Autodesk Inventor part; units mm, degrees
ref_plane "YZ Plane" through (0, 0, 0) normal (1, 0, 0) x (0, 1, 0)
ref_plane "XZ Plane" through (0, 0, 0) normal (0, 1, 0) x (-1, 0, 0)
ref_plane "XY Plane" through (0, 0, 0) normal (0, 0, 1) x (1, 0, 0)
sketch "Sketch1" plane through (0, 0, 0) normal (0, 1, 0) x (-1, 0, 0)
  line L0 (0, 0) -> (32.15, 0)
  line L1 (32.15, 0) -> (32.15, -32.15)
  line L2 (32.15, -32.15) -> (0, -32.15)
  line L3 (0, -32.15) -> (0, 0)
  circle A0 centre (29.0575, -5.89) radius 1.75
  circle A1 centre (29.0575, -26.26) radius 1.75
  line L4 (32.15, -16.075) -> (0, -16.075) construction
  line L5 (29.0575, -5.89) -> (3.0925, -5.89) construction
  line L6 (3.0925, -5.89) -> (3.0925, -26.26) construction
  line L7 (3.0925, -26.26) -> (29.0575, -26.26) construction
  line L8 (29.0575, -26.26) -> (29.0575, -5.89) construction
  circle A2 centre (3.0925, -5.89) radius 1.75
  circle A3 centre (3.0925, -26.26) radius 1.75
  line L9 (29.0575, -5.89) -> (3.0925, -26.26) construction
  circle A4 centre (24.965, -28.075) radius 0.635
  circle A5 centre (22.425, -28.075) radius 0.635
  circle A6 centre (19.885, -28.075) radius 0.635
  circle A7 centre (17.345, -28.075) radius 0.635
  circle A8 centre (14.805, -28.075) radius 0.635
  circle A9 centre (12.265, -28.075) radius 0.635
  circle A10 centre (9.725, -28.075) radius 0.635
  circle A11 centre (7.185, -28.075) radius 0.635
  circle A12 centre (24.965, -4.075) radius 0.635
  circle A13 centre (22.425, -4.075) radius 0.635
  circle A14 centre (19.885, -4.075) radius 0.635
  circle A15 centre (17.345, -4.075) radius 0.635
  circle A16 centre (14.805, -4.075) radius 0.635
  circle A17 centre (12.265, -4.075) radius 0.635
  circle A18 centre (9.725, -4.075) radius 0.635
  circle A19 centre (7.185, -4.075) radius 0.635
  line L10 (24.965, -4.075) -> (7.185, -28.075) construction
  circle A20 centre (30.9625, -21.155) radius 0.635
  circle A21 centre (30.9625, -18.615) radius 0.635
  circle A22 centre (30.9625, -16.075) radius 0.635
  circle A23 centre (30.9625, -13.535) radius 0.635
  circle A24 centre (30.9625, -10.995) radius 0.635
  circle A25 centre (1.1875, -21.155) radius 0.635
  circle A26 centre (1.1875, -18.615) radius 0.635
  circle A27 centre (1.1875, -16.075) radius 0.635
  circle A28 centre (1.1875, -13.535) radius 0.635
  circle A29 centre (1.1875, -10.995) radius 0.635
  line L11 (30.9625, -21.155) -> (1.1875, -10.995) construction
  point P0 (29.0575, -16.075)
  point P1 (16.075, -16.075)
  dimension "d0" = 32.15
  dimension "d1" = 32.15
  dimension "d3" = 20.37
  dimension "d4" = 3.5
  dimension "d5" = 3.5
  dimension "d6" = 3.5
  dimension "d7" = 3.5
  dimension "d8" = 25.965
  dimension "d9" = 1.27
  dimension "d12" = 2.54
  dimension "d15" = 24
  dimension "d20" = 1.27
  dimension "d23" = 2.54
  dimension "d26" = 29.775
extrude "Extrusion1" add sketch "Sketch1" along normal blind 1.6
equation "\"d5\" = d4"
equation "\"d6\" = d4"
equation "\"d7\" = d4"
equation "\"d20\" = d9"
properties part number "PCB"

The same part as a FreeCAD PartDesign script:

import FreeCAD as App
import Part
import Sketcher
Q = App.Units.Quantity


def add_polygon(sketch, points):
    """Adds a closed chain of lines whose ends are joined by coincident constraints."""
    first, n = sketch.GeometryCount, len(points)
    for a, b in zip(points, points[1:] + points[:1]):
        sketch.addGeometry(Part.LineSegment(App.Vector(*a, 0), App.Vector(*b, 0)), False)
    for i in range(n):
        sketch.addConstraint(Sketcher.Constraint("Coincident", first + i, 2, first + (i + 1) % n, 1))

doc = App.newDocument("Part")
body = doc.addObject("PartDesign::Body", "Body")

sketch1 = doc.addObject("Sketcher::SketchObject", "Sketch")
body.addObject(sketch1)
sketch1.AttachmentSupport = (doc.XZ_Plane, [""])
sketch1.MapMode = "FlatFace"
add_polygon(sketch1, [(-32.1, 0), (0, 0), (0, -32.1), (-32.1, -32.1)])
sketch1.addGeometry(Part.Circle(App.Vector(-3.1, -26.3, 0), App.Vector(0, 0, 1), 1.8), False)
sketch1.addGeometry(Part.Circle(App.Vector(-7.2, -28.1, 0), App.Vector(0, 0, 1), 0.6), False)
sketch1.addGeometry(Part.Circle(App.Vector(-9.7, -28.1, 0), App.Vector(0, 0, 1), 0.6), False)
sketch1.addGeometry(Part.Circle(App.Vector(-12.3, -28.1, 0), App.Vector(0, 0, 1), 0.6), False)
sketch1.addGeometry(Part.Circle(App.Vector(-14.8, -28.1, 0), App.Vector(0, 0, 1), 0.6), False)
sketch1.addGeometry(Part.Circle(App.Vector(-1.2, -21.2, 0), App.Vector(0, 0, 1), 0.6), False)
sketch1.addGeometry(Part.Circle(App.Vector(-1.2, -18.6, 0), App.Vector(0, 0, 1), 0.6), False)
sketch1.addGeometry(Part.Circle(App.Vector(-17.3, -28.1, 0), App.Vector(0, 0, 1), 0.6), False)
sketch1.addGeometry(Part.Circle(App.Vector(-19.9, -28.1, 0), App.Vector(0, 0, 1), 0.6), False)
sketch1.addGeometry(Part.Circle(App.Vector(-22.4, -28.1, 0), App.Vector(0, 0, 1), 0.6), False)
sketch1.addGeometry(Part.Circle(App.Vector(-25, -28.1, 0), App.Vector(0, 0, 1), 0.6), False)
sketch1.addGeometry(Part.Circle(App.Vector(-29.1, -26.3, 0), App.Vector(0, 0, 1), 1.8), False)
sketch1.addGeometry(Part.Circle(App.Vector(-31, -21.2, 0), App.Vector(0, 0, 1), 0.6), False)
sketch1.addGeometry(Part.Circle(App.Vector(-31, -18.6, 0), App.Vector(0, 0, 1), 0.6), False)
sketch1.addGeometry(Part.Circle(App.Vector(-1.2, -16.1, 0), App.Vector(0, 0, 1), 0.6), False)
sketch1.addGeometry(Part.Circle(App.Vector(-1.2, -13.5, 0), App.Vector(0, 0, 1), 0.6), False)
sketch1.addGeometry(Part.Circle(App.Vector(-1.2, -11, 0), App.Vector(0, 0, 1), 0.6), False)
sketch1.addGeometry(Part.Circle(App.Vector(-3.1, -5.9, 0), App.Vector(0, 0, 1), 1.8), False)
sketch1.addGeometry(Part.Circle(App.Vector(-7.2, -4.1, 0), App.Vector(0, 0, 1), 0.6), False)
sketch1.addGeometry(Part.Circle(App.Vector(-9.7, -4.1, 0), App.Vector(0, 0, 1), 0.6), False)
sketch1.addGeometry(Part.Circle(App.Vector(-12.3, -4.1, 0), App.Vector(0, 0, 1), 0.6), False)
sketch1.addGeometry(Part.Circle(App.Vector(-14.8, -4.1, 0), App.Vector(0, 0, 1), 0.6), False)
sketch1.addGeometry(Part.Circle(App.Vector(-31, -16.1, 0), App.Vector(0, 0, 1), 0.6), False)
sketch1.addGeometry(Part.Circle(App.Vector(-31, -13.5, 0), App.Vector(0, 0, 1), 0.6), False)
sketch1.addGeometry(Part.Circle(App.Vector(-31, -11, 0), App.Vector(0, 0, 1), 0.6), False)
sketch1.addGeometry(Part.Circle(App.Vector(-17.3, -4.1, 0), App.Vector(0, 0, 1), 0.6), False)
sketch1.addGeometry(Part.Circle(App.Vector(-19.9, -4.1, 0), App.Vector(0, 0, 1), 0.6), False)
sketch1.addGeometry(Part.Circle(App.Vector(-22.4, -4.1, 0), App.Vector(0, 0, 1), 0.6), False)
sketch1.addGeometry(Part.Circle(App.Vector(-25, -4.1, 0), App.Vector(0, 0, 1), 0.6), False)
sketch1.addGeometry(Part.Circle(App.Vector(-29.1, -5.9, 0), App.Vector(0, 0, 1), 1.8), False)
sketch1.addConstraint([
    Sketcher.Constraint("Horizontal", 0),
    Sketcher.Constraint("Vertical", 1),
    Sketcher.Constraint("Horizontal", 2),
    Sketcher.Constraint("Vertical", 3),
    Sketcher.Constraint("Coincident", 0, 2, -1, 1),
    Sketcher.Constraint("Equal", 5, 6),
    Sketcher.Constraint("Equal", 6, 7),
    Sketcher.Constraint("Equal", 7, 8),
    Sketcher.Constraint("Equal", 8, 9),
    Sketcher.Constraint("Equal", 9, 10),
    Sketcher.Constraint("Equal", 10, 11),
    Sketcher.Constraint("Equal", 11, 12),
    Sketcher.Constraint("Equal", 12, 13),
    Sketcher.Constraint("Equal", 13, 14),
    Sketcher.Constraint("Equal", 4, 15),
    Sketcher.Constraint("Equal", 14, 16),
    Sketcher.Constraint("Equal", 16, 17),
    Sketcher.Constraint("Equal", 17, 18),
    Sketcher.Constraint("Equal", 18, 19),
    Sketcher.Constraint("Equal", 19, 20),
    Sketcher.Constraint("Equal", 15, 21),
    Sketcher.Constraint("Equal", 20, 22),
    Sketcher.Constraint("Equal", 22, 23),
    Sketcher.Constraint("Equal", 23, 24),
    Sketcher.Constraint("Equal", 24, 25),
    Sketcher.Constraint("Equal", 25, 26),
    Sketcher.Constraint("Equal", 26, 27),
    Sketcher.Constraint("Equal", 27, 28),
    Sketcher.Constraint("Equal", 28, 29),
    Sketcher.Constraint("Equal", 29, 30),
    Sketcher.Constraint("Equal", 30, 31),
    Sketcher.Constraint("Equal", 31, 32),
    Sketcher.Constraint("Equal", 21, 33),
    Sketcher.Constraint("Horizontal", 5, 3, 6, 3),
    Sketcher.Constraint("Horizontal", 6, 3, 7, 3),
    Sketcher.Constraint("Horizontal", 7, 3, 8, 3),
    Sketcher.Constraint("Horizontal", 8, 3, 11, 3),
    Sketcher.Constraint("Horizontal", 11, 3, 12, 3),
    Sketcher.Constraint("Horizontal", 12, 3, 13, 3),
    Sketcher.Constraint("Horizontal", 13, 3, 14, 3),
    Sketcher.Constraint("Horizontal", 4, 3, 15, 3),
    Sketcher.Constraint("Horizontal", 9, 3, 16, 3),
    Sketcher.Constraint("Horizontal", 10, 3, 17, 3),
    Sketcher.Constraint("Horizontal", 22, 3, 23, 3),
    Sketcher.Constraint("Horizontal", 23, 3, 24, 3),
    Sketcher.Constraint("Horizontal", 24, 3, 25, 3),
    Sketcher.Constraint("Horizontal", 18, 3, 26, 3),
    Sketcher.Constraint("Horizontal", 19, 3, 27, 3),
    Sketcher.Constraint("Horizontal", 20, 3, 28, 3),
    Sketcher.Constraint("Horizontal", 25, 3, 29, 3),
    Sketcher.Constraint("Horizontal", 29, 3, 30, 3),
    Sketcher.Constraint("Horizontal", 30, 3, 31, 3),
    Sketcher.Constraint("Horizontal", 31, 3, 32, 3),
    Sketcher.Constraint("Horizontal", 21, 3, 33, 3),
    Sketcher.Constraint("Vertical", 9, 3, 10, 3),
    Sketcher.Constraint("Vertical", 16, 3, 17, 3),
    Sketcher.Constraint("Vertical", 10, 3, 18, 3),
    Sketcher.Constraint("Vertical", 18, 3, 19, 3),
    Sketcher.Constraint("Vertical", 19, 3, 20, 3),
    Sketcher.Constraint("Vertical", 4, 3, 21, 3),
    Sketcher.Constraint("Vertical", 5, 3, 22, 3),
    Sketcher.Constraint("Vertical", 6, 3, 23, 3),
    Sketcher.Constraint("Vertical", 7, 3, 24, 3),
    Sketcher.Constraint("Vertical", 8, 3, 25, 3),
    Sketcher.Constraint("Vertical", 17, 3, 26, 3),
    Sketcher.Constraint("Vertical", 26, 3, 27, 3),
    Sketcher.Constraint("Vertical", 27, 3, 28, 3),
    Sketcher.Constraint("Vertical", 11, 3, 29, 3),
    Sketcher.Constraint("Vertical", 12, 3, 30, 3),
    Sketcher.Constraint("Vertical", 13, 3, 31, 3),
    Sketcher.Constraint("Vertical", 14, 3, 32, 3),
    Sketcher.Constraint("Vertical", 15, 3, 33, 3),
    Sketcher.Constraint("Equal", 2, 1),
    Sketcher.Constraint("Diameter", 5, Q("0.05 in")),
    Sketcher.Constraint("Diameter", 4, Q("0.1378 in")),
    Sketcher.Constraint("DistanceX", 6, 3, 5, 3, Q("0.1 in")),
    Sketcher.Constraint("DistanceX", 7, 3, 6, 3, Q("0.1 in")),
    Sketcher.Constraint("DistanceX", 8, 3, 7, 3, Q("0.1 in")),
    Sketcher.Constraint("DistanceY", 9, 3, 10, 3, Q("0.1 in")),
    Sketcher.Constraint("DistanceX", 11, 3, 8, 3, Q("0.1 in")),
    Sketcher.Constraint("DistanceX", 12, 3, 11, 3, Q("0.1 in")),
    Sketcher.Constraint("DistanceX", 13, 3, 12, 3, Q("0.1 in")),
    Sketcher.Constraint("DistanceX", 14, 3, 13, 3, Q("0.1 in")),
    Sketcher.Constraint("DistanceY", 10, 3, 18, 3, Q("0.1 in")),
    Sketcher.Constraint("DistanceY", 18, 3, 19, 3, Q("0.1 in")),
    Sketcher.Constraint("DistanceY", 19, 3, 20, 3, Q("0.1 in")),
    Sketcher.Constraint("DistanceX", 0, 1, 0, 2, Q("32.15 mm")),
    Sketcher.Constraint("DistanceX", 15, 3, -1, 1, Q("1.144 in")),
    Sketcher.Constraint("DistanceX", 16, 3, -1, 1, Q("1.219 in")),
    Sketcher.Constraint("DistanceX", 4, 3, 9, 3, Q("0.075 in")),
    Sketcher.Constraint("DistanceY", 21, 3, -1, 1, Q("0.2319 in")),
    Sketcher.Constraint("DistanceY", 1, 2, 4, 3, Q("0.2319 in")),
    Sketcher.Constraint("DistanceX", 4, 3, -1, 1, Q("3.0925 mm")),
    Sketcher.Constraint("DistanceX", 5, 3, -1, 1, Q("7.185 mm")),
    Sketcher.Constraint("DistanceY", 5, 3, -1, 1, Q("28.075 mm")),
    Sketcher.Constraint("DistanceY", 9, 3, -1, 1, Q("21.155 mm")),
    Sketcher.Constraint("DistanceY", 22, 3, -1, 1, Q("4.075 mm")),
])
pad1 = doc.addObject("PartDesign::Pad", "Pad")
body.addObject(pad1)
pad1.Profile = sketch1
pad1.Length = Q("0.0629921 in")
pad1.Reversed = True

doc.recompute()
